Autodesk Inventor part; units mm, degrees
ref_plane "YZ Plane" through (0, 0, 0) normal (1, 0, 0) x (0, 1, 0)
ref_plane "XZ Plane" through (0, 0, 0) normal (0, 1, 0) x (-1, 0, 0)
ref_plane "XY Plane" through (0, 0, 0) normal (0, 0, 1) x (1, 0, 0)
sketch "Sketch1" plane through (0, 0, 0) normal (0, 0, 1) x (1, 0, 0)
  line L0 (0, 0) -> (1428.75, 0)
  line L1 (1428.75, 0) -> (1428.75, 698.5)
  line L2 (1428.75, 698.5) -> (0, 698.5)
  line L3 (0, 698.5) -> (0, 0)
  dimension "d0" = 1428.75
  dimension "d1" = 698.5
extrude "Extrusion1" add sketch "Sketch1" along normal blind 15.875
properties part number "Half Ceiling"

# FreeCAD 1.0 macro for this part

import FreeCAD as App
import Part
import Sketcher

V = App.Vector
Q = App.Units.Quantity


def add_polygon(sketch, points):
    """Adds a closed chain of lines whose ends are joined by coincident constraints."""
    first, n = sketch.GeometryCount, len(points)
    for a, b in zip(points, points[1:] + points[:1]):
        sketch.addGeometry(Part.LineSegment(App.Vector(*a, 0), App.Vector(*b, 0)), False)
    for i in range(n):
        sketch.addConstraint(Sketcher.Constraint("Coincident", first + i, 2, first + (i + 1) % n, 1))

doc = App.newDocument("Part")
params = doc.addObject("Spreadsheet::Sheet", "Params")
for row, (alias, value) in enumerate([
    ("sketch1_height", "27.5 in"),
    ("sketch1_width", "56.25 in"),
    ("pad1_length", "0.625 in"),
], start=1):
    params.set(f"A{row}", alias)
    params.set(f"B{row}", "=" + value)
    params.setAlias(f"B{row}", alias)

body = doc.addObject("PartDesign::Body", "Body")

sketch1 = body.newObject("Sketcher::SketchObject", "Sketch")
sketch1.AttachmentSupport = (doc.getObject("XY_Plane"), [""])
sketch1.MapMode = "FlatFace"
add_polygon(sketch1, [(0, 698), (0, 0), (1429, 0), (1429, 698)])
sketch1.addConstraint([
    Sketcher.Constraint("Vertical", 0),
    Sketcher.Constraint("Horizontal", 1),
    Sketcher.Constraint("Vertical", 2),
    Sketcher.Constraint("Horizontal", 3),
    Sketcher.Constraint("Coincident", 0, 2, -1, 1),
    Sketcher.Constraint("DistanceY", 0, 2, 0, 1, Q("27.5 in")),
    Sketcher.Constraint("DistanceX", 1, 1, 1, 2, Q("56.25 in")),
])
sketch1.setExpression("Constraints[9]", "Params.sketch1_height")
sketch1.setExpression("Constraints[10]", "Params.sketch1_width")
pad1 = body.newObject("PartDesign::Pad", "Pad")
pad1.Profile = sketch1
pad1.setExpression("Length", "Params.pad1_length")

doc.recompute()
